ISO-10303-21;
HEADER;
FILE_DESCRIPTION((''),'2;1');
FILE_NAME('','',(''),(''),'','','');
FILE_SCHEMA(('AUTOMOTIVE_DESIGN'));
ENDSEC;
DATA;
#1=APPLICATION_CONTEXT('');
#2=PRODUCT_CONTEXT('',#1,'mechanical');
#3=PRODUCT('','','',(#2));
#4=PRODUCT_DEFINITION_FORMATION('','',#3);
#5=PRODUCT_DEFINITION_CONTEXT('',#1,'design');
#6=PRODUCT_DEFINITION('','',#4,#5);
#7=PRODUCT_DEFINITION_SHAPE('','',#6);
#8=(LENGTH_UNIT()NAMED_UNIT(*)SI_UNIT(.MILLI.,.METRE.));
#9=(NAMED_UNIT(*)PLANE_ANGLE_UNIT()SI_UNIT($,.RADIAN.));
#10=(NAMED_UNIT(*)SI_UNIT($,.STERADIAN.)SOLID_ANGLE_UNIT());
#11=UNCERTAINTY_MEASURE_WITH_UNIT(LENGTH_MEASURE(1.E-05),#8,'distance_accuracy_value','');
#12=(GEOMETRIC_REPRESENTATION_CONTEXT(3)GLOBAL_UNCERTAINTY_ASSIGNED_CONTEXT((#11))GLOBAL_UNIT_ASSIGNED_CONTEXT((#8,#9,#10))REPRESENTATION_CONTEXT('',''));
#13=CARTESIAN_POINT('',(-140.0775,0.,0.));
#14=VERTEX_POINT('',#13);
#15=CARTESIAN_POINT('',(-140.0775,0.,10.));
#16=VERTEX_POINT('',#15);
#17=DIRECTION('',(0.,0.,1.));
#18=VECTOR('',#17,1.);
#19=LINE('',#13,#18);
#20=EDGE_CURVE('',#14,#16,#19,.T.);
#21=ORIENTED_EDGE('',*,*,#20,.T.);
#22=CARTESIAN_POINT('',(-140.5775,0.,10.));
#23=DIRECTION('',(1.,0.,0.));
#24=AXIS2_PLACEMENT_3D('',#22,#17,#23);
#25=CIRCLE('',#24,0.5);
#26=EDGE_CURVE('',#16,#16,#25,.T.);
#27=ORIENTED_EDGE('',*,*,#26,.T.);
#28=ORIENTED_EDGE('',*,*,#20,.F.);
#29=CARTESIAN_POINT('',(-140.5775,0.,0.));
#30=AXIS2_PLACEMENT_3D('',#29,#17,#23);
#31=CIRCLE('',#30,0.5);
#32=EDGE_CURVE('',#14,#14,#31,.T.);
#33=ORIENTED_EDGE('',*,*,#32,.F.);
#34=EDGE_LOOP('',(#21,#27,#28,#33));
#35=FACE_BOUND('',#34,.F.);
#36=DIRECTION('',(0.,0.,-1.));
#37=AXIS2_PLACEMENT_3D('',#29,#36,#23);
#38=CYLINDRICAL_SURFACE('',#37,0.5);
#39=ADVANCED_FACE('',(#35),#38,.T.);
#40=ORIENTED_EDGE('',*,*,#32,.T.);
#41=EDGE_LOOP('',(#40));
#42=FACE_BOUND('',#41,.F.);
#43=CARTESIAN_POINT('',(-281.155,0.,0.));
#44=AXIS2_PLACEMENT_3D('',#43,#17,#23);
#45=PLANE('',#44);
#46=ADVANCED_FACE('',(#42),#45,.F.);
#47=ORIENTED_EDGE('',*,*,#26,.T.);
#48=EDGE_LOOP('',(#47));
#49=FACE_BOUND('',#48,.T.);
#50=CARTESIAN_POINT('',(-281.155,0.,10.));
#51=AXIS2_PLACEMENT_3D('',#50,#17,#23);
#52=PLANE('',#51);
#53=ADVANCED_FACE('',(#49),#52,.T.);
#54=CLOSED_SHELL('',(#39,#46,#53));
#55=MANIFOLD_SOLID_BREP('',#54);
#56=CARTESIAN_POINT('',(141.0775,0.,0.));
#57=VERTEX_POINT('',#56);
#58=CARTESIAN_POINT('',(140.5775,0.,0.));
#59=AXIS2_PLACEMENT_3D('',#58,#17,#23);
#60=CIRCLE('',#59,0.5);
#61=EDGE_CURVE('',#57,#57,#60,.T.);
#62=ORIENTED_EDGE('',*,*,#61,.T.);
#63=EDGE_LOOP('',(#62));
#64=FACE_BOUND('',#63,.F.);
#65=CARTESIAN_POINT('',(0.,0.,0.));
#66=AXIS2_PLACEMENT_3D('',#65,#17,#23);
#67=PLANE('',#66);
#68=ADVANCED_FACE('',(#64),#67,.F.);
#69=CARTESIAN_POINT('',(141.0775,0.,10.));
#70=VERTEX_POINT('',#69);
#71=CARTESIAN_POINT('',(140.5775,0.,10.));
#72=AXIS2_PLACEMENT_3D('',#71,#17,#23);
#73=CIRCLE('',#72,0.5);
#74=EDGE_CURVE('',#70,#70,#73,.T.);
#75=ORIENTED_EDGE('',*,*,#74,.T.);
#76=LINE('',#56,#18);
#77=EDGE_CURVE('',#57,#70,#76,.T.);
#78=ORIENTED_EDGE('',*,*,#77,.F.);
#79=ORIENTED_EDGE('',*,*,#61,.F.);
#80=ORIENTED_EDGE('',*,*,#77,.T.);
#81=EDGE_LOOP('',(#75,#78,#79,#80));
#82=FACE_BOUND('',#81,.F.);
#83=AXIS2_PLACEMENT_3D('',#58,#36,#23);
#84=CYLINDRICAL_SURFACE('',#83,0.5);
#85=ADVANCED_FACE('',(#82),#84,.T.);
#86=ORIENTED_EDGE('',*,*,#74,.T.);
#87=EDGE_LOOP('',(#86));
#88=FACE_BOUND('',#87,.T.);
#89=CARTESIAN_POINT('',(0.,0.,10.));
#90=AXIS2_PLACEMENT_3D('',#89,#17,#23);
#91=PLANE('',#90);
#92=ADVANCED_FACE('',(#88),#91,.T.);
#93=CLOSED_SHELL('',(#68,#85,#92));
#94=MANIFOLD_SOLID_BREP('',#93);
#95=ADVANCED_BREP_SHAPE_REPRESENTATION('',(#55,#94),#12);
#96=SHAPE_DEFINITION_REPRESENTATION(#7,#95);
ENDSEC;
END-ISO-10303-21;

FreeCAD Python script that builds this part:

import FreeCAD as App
import Part
import Sketcher
from FreeCAD import Vector
Q = App.Units.Quantity

doc = App.newDocument("Part")
body = doc.addObject("PartDesign::Body", "Body")
body.AllowCompound = True

# Sketch on XY plane
sketch1 = body.newObject("Sketcher::SketchObject", "Sketch")
sketch1.AttachmentSupport = (doc.getObject("XY_Plane"), [""])
sketch1.MapMode = "FlatFace"
sketch1.addGeometry(Part.Circle(Vector(140.6, 0, 0), Vector(0, 0, 1), 0.5), False)
sketch1.addConstraint(Sketcher.Constraint("PointOnObject", 0, 3, -1))
sketch1.addConstraint(Sketcher.Constraint("Diameter", 0, Q("1 mm")))
sketch1.addConstraint(Sketcher.Constraint("DistanceX", -1, 1, 0, 3, Q("140.5775 mm")))
pad1 = body.newObject("PartDesign::Pad", "Pad")
pad1.Profile = sketch1
pad1.Length = 10
doc.recompute()

linearpattern = body.newObject("PartDesign::LinearPattern", "LinearPattern")
linearpattern.Originals = [pad1]
linearpattern.Direction = (doc.getObject("X_Axis"), [""])
linearpattern.Mode = "offset"
linearpattern.Offset = 281.155
linearpattern.Occurrences = 2
linearpattern.Reversed = True
body.Tip = linearpattern

doc.recompute()
